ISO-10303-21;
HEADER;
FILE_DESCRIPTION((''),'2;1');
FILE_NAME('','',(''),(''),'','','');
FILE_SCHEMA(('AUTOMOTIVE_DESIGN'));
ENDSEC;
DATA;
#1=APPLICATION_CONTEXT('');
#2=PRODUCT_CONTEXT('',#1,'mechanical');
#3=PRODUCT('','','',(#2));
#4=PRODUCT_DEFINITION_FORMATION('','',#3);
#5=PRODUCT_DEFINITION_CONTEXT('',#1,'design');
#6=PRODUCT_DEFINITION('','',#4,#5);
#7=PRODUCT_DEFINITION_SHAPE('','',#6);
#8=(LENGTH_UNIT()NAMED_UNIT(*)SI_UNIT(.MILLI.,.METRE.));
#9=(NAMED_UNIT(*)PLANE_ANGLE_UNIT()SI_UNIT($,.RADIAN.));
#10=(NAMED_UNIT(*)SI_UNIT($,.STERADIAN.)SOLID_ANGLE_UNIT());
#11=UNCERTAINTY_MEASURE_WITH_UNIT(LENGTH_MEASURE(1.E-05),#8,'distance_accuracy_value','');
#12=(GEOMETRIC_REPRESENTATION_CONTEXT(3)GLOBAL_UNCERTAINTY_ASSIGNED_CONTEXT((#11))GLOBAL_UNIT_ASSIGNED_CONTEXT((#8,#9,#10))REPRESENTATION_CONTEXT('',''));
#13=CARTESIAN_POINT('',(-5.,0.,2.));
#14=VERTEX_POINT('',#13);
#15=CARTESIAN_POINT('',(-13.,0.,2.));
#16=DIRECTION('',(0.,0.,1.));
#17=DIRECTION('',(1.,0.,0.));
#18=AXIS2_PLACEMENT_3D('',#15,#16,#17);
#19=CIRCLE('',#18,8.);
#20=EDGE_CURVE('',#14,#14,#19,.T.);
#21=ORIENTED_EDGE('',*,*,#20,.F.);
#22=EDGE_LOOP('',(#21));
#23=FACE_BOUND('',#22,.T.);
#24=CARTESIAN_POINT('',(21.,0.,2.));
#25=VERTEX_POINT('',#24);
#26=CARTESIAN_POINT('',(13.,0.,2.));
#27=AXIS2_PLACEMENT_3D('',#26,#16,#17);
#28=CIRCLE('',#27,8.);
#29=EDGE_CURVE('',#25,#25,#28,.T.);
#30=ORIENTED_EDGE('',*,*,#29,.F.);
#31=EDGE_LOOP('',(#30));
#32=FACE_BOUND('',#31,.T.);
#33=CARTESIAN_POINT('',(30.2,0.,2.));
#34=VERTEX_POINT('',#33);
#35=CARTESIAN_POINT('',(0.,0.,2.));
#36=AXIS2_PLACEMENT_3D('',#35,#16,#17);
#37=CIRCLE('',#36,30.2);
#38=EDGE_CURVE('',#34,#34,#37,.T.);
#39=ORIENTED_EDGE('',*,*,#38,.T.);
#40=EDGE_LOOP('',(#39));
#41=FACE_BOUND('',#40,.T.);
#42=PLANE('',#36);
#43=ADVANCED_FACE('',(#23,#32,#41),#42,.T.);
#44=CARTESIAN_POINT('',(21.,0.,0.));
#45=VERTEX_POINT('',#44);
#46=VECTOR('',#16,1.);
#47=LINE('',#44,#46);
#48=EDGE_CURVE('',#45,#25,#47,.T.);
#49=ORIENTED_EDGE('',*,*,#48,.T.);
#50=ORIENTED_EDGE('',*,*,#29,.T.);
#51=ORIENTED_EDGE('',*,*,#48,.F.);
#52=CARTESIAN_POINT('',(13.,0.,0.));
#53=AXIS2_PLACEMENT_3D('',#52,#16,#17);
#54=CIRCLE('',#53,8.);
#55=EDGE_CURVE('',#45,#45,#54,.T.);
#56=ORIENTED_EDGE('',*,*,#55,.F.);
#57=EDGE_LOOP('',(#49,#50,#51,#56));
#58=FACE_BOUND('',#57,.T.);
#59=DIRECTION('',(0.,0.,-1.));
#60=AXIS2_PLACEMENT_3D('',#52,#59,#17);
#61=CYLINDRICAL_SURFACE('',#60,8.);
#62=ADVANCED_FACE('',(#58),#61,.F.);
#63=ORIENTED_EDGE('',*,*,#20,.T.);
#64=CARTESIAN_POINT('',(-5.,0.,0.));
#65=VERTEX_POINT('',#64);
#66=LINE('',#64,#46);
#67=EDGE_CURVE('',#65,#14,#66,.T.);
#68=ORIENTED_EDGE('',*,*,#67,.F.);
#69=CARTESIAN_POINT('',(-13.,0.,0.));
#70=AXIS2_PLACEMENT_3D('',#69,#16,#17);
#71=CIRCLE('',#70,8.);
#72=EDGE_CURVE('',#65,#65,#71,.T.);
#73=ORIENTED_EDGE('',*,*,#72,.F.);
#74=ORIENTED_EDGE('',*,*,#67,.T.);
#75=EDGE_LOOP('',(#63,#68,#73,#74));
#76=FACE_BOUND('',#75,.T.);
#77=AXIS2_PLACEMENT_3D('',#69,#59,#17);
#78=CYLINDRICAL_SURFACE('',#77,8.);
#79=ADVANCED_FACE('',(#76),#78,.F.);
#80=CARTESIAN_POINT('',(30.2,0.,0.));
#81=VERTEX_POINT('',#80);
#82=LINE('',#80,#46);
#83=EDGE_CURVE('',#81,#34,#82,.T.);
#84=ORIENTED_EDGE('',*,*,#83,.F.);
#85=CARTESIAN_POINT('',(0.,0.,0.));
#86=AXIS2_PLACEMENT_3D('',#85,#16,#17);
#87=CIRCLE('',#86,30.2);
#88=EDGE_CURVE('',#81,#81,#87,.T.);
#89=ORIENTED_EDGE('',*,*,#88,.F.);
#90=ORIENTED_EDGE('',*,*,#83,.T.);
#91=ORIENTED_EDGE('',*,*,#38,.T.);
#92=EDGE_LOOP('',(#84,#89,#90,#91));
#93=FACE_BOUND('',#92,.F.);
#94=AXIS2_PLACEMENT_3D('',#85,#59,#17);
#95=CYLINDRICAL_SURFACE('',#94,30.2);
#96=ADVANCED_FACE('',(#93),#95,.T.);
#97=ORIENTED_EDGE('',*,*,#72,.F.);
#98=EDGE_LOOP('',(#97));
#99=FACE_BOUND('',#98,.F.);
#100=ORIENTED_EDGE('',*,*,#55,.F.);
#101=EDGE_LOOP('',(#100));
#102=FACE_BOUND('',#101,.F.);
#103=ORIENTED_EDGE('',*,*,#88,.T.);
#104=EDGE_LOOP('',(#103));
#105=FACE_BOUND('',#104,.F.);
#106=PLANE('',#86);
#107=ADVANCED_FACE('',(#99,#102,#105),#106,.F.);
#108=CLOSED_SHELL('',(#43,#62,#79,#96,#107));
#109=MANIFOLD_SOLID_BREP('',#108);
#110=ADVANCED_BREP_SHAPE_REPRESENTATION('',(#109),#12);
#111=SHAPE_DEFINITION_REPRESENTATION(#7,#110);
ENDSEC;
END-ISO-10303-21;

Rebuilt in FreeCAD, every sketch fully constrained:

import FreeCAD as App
import Part
import Sketcher
Q = App.Units.Quantity

doc = App.newDocument("Part")
params = doc.addObject("Spreadsheet::Sheet", "Params")
for row, (alias, value) in enumerate([
    ("sketch1_diameter", "16 mm"),
    ("sketch1_diameter2", "60.4 mm"),
    ("pad1_length", "2 mm"),
], start=1):
    params.set(f"A{row}", alias)
    params.set(f"B{row}", "=" + value)
    params.setAlias(f"B{row}", alias)

body = doc.addObject("PartDesign::Body", "Body")

# Sketch on XY plane
sketch1 = doc.addObject("Sketcher::SketchObject", "Sketch")
body.addObject(sketch1)
sketch1.AttachmentSupport = (doc.XY_Plane, [""])
sketch1.MapMode = "FlatFace"
sketch1.addGeometry([
    Part.Circle(App.Vector(0, 0, 0), App.Vector(0, 0, 1), 30.2),
    Part.Circle(App.Vector(-13, 0, 0), App.Vector(0, 0, 1), 8),
    Part.Circle(App.Vector(13, 0, 0), App.Vector(0, 0, 1), 8),
], False)
sketch1.addConstraint([
    Sketcher.Constraint("Coincident", 0, 3, -1, 1),
    Sketcher.Constraint("Equal", 1, 2),
    Sketcher.Constraint("Symmetric", 1, 3, 2, 3, -1, 1),
    Sketcher.Constraint("PointOnObject", 1, 3, -1),
    Sketcher.Constraint("Diameter", 1, Q("16 mm")),
    Sketcher.Constraint("Diameter", 0, Q("60.4 mm")),
    Sketcher.Constraint("DistanceX", 1, 3, -1, 1, Q("13 mm")),
])
sketch1.setExpression("Constraints[4]", "Params.sketch1_diameter")
sketch1.setExpression("Constraints[5]", "Params.sketch1_diameter2")
pad1 = doc.addObject("PartDesign::Pad", "Pad")
body.addObject(pad1)
pad1.Profile = sketch1
pad1.setExpression("Length", "Params.pad1_length")

doc.recompute()
